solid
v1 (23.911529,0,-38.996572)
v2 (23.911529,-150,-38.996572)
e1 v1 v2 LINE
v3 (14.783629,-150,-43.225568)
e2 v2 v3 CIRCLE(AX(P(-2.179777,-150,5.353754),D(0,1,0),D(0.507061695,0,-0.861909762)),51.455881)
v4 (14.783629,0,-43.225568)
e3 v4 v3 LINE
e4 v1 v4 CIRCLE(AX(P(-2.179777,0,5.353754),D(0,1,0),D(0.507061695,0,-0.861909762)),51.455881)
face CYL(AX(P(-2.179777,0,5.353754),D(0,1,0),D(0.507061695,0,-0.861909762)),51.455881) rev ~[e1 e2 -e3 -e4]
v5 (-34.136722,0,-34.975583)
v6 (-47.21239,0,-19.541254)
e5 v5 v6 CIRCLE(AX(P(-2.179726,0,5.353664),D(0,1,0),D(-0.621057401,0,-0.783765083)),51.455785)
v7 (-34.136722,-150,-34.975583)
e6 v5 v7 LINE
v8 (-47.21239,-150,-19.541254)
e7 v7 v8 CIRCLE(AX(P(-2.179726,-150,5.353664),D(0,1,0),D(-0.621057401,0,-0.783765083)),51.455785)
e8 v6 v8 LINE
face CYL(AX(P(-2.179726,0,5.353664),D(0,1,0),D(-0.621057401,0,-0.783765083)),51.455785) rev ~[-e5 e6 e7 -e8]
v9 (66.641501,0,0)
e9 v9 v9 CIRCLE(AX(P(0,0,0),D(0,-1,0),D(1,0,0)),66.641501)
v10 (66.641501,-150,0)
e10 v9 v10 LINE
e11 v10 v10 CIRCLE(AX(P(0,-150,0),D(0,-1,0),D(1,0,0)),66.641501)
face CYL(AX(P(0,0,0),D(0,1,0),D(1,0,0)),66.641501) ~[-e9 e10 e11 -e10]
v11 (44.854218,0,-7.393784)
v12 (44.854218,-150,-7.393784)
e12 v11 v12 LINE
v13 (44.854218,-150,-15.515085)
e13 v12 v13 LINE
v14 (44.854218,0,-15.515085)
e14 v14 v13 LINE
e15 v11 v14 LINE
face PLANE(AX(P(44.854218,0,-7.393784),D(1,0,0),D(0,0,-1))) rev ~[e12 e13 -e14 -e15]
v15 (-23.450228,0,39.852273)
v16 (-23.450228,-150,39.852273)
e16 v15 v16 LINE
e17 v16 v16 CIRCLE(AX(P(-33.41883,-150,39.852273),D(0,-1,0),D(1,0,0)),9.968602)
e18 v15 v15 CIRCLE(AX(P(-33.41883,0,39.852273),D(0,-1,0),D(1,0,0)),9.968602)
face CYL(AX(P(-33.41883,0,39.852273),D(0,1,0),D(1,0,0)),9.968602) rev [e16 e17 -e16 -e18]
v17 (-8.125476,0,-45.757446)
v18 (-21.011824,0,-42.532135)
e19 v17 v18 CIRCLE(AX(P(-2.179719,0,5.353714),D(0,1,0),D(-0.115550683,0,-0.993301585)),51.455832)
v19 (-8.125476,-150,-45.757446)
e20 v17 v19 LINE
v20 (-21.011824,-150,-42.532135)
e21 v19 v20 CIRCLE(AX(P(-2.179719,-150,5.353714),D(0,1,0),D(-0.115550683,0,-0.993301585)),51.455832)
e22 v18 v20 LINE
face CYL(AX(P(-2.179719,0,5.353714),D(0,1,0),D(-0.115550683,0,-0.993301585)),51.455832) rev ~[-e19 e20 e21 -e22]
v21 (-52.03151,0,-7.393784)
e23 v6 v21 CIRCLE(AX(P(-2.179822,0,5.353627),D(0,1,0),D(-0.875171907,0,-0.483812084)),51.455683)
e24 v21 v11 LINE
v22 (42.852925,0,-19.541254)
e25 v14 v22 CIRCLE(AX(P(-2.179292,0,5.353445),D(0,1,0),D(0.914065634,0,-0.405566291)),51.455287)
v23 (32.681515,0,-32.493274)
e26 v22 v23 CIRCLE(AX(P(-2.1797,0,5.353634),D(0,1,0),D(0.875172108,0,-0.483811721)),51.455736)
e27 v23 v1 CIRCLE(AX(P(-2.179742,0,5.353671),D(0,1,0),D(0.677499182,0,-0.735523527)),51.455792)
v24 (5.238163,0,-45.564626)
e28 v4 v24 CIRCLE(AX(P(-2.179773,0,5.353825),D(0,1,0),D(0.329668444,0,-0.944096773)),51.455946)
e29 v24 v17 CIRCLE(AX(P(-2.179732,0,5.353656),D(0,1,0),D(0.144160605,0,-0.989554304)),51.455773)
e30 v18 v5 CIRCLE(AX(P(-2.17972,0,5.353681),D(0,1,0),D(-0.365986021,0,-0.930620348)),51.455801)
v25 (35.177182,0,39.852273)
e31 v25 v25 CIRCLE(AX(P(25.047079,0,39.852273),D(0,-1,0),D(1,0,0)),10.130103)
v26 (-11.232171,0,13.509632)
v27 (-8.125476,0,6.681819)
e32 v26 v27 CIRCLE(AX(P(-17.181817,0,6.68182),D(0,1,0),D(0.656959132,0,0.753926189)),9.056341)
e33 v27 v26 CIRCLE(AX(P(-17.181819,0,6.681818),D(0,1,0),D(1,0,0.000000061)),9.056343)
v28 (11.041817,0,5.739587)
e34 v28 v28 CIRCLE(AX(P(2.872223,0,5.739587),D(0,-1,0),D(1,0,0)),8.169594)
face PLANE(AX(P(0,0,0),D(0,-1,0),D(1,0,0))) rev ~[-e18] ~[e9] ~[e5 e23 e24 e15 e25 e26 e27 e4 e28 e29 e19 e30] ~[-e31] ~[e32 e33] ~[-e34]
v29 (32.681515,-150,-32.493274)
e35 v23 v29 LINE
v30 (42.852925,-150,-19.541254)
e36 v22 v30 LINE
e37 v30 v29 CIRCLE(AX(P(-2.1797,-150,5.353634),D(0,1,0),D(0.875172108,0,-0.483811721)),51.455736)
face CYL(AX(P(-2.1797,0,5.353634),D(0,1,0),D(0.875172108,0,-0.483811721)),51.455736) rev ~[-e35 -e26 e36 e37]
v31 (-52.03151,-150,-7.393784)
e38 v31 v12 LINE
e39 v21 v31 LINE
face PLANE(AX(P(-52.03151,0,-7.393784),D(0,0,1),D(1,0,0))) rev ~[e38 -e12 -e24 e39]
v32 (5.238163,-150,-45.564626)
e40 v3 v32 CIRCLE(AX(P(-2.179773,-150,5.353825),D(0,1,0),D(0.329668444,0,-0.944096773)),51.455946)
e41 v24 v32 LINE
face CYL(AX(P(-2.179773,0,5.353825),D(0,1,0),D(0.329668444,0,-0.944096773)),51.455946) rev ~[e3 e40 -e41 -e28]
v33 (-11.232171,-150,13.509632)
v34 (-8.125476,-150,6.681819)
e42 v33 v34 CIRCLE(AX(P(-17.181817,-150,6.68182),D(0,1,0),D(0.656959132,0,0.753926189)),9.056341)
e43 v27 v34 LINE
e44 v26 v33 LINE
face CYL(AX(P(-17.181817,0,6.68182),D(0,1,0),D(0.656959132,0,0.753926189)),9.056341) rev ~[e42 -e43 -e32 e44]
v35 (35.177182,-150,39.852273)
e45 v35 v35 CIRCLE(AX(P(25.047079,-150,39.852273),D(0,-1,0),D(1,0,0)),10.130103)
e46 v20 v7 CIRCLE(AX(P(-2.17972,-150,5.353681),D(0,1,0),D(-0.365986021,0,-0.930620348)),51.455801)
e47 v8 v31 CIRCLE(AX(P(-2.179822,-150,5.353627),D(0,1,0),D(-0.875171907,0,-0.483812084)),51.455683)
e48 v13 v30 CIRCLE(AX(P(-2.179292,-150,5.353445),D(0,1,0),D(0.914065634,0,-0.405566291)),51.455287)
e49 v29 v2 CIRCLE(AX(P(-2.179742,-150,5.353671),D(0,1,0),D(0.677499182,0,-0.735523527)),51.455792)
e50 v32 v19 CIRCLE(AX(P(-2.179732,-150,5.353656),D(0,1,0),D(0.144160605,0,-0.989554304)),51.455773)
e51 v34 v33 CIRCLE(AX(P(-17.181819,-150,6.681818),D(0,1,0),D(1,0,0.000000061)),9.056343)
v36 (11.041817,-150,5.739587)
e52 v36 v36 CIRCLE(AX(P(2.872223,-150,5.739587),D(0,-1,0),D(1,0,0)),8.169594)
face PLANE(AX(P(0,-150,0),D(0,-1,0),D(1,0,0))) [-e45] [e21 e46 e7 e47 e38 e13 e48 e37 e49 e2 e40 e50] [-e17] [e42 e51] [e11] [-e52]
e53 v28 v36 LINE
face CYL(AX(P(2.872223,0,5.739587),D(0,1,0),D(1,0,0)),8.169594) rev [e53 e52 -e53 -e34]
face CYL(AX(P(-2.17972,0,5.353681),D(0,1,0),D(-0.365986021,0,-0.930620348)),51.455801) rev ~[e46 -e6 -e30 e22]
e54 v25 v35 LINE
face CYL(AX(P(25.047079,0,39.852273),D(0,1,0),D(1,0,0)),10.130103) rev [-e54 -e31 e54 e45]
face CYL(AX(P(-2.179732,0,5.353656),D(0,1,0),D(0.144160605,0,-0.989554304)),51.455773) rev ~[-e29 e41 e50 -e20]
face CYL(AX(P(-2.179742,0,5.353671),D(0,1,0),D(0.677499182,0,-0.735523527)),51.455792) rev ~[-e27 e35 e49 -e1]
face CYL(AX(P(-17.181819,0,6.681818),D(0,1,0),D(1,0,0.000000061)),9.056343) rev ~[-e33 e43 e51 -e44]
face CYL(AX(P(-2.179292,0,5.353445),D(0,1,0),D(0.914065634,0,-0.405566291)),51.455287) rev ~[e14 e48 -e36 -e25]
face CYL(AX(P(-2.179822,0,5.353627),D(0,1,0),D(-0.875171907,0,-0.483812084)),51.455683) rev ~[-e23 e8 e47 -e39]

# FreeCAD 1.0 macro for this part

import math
import FreeCAD as App
import Part
import Sketcher

V = App.Vector
Q = App.Units.Quantity

doc = App.newDocument("Part")
body = doc.addObject("PartDesign::Body", "Body")

# Sketch on XZ plane
sketch1 = doc.addObject("Sketcher::SketchObject", "Sketch")
body.addObject(sketch1)
sketch1.AttachmentSupport = (doc.XZ_Plane, [""])
sketch1.MapMode = "FlatFace"
sketch1.addGeometry([
    Part.Circle(V(0, 0, 0), V(0, 0, 1), 66.641501),  # 0
    Part.ArcOfCircle(Part.Circle(V(-2.179726, 5.353664, 0), V(0, 0, 1), 51.455785), math.radians(-151.065343), math.radians(-128.393393)),  # 1
    Part.ArcOfCircle(Part.Circle(V(-2.179822, 5.353627, 0), V(0, 0, 1), 51.455683), math.radians(-165.656435), math.radians(-151.065327)),  # 2
    Part.LineSegment(V(-52.03151, -7.393784, 0), V(44.854218, -7.393784, 0)),  # 3
    Part.LineSegment(V(44.854218, -7.393784, 0), V(44.854218, -15.515085, 0)),  # 4
    Part.ArcOfCircle(Part.Circle(V(-2.179292, 5.353445, 0), V(0, 0, 1), 51.455287), math.radians(-28.934684), math.radians(-23.926619)),  # 5
    Part.ArcOfCircle(Part.Circle(V(-2.1797, 5.353634, 0), V(0, 0, 1), 51.455736), math.radians(-47.351478), math.radians(-28.934649)),  # 6
    Part.ArcOfCircle(Part.Circle(V(-2.179742, 5.353671, 0), V(0, 0, 1), 51.455792), math.radians(-59.531679), math.radians(-47.351472)),  # 7
    Part.ArcOfCircle(Part.Circle(V(-2.179777, 5.353754, 0), V(0, 0, 1), 51.455881), math.radians(-70.751317), math.radians(-59.531692)),  # 8
    Part.ArcOfCircle(Part.Circle(V(-2.179773, 5.353825, 0), V(0, 0, 1), 51.455946), math.radians(-81.711308), math.radians(-70.751347)),  # 9
    Part.ArcOfCircle(Part.Circle(V(-2.179732, 5.353656, 0), V(0, 0, 1), 51.455773), math.radians(-96.635382), math.radians(-81.711325)),  # 10
    Part.ArcOfCircle(Part.Circle(V(-2.179719, 5.353714, 0), V(0, 0, 1), 51.455832), math.radians(-111.468264), math.radians(-96.635389)),  # 11
    Part.ArcOfCircle(Part.Circle(V(-2.17972, 5.353681, 0), V(0, 0, 1), 51.455801), math.radians(-128.393387), math.radians(-111.468277)),  # 12
    Part.ArcOfCircle(Part.Circle(V(-17.181819, 6.681818, 0), V(0, 0, 1), 9.056343), math.radians(48.931624), math.radians(360.000003)),  # 13
    Part.ArcOfCircle(Part.Circle(V(-17.181817, 6.68182, 0), V(0, 0, 1), 9.056341), math.radians(-0.000003), math.radians(48.931631)),  # 14
    Part.Circle(V(-33.41883, 39.852273, 0), V(0, 0, 1), 9.968602),  # 15
    Part.Circle(V(2.872223, 5.739587, 0), V(0, 0, 1), 8.169594),  # 16
    Part.Circle(V(25.047079, 39.852273, 0), V(0, 0, 1), 10.130103),  # 17
], False)
sketch1.addConstraint([
    Sketcher.Constraint("Coincident", 1, 1, 2, 2),
    Sketcher.Constraint("Coincident", 2, 1, 3, 1),
    Sketcher.Constraint("Coincident", 3, 2, 4, 1),
    Sketcher.Constraint("Coincident", 4, 2, 5, 2),
    Sketcher.Constraint("Coincident", 5, 1, 6, 2),
    Sketcher.Constraint("Coincident", 6, 1, 7, 2),
    Sketcher.Constraint("Coincident", 7, 1, 8, 2),
    Sketcher.Constraint("Coincident", 8, 1, 9, 2),
    Sketcher.Constraint("Coincident", 9, 1, 10, 2),
    Sketcher.Constraint("Coincident", 10, 1, 11, 2),
    Sketcher.Constraint("Coincident", 11, 1, 12, 2),
    Sketcher.Constraint("Coincident", 12, 1, 1, 2),
    Sketcher.Constraint("Coincident", 13, 1, 14, 2),
    Sketcher.Constraint("Coincident", 14, 1, 13, 2),
    Sketcher.Constraint("Horizontal", 3),
    Sketcher.Constraint("Vertical", 4),
    Sketcher.Constraint("Coincident", 0, 3, -1, 1),
    Sketcher.Constraint("Radius", 12, Q("51.455801 mm")),
    Sketcher.Constraint("Diameter", 16, Q("16.339188 mm")),
    Sketcher.Constraint("Radius", 7, Q("51.455792 mm")),
    Sketcher.Constraint("Radius", 8, Q("51.455881 mm")),
    Sketcher.Constraint("Radius", 14, Q("9.056341 mm")),
    Sketcher.Constraint("Diameter", 0, Q("133.283002 mm")),
    Sketcher.Constraint("Diameter", 15, Q("19.937204 mm")),
    Sketcher.Constraint("Diameter", 17, Q("20.260206 mm")),
    Sketcher.Constraint("DistanceY", 4, 2, 4, 1, Q("8.121301 mm")),
    Sketcher.Constraint("Radius", 1, Q("51.455785 mm")),
    Sketcher.Constraint("Radius", 2, Q("51.455683 mm")),
    Sketcher.Constraint("Radius", 5, Q("51.455287 mm")),
    Sketcher.Constraint("Radius", 6, Q("51.455736 mm")),
    Sketcher.Constraint("Radius", 9, Q("51.455946 mm")),
    Sketcher.Constraint("Radius", 10, Q("51.455773 mm")),
    Sketcher.Constraint("Radius", 11, Q("51.455832 mm")),
    Sketcher.Constraint("Radius", 13, Q("9.056343 mm")),
    Sketcher.Constraint("DistanceX", 3, 1, 3, 2, Q("96.885728 mm")),
    Sketcher.Constraint("DistanceX", 6, 3, -1, 1, Q("2.1797 mm")),
    Sketcher.Constraint("DistanceX", 11, 3, 17, 3, Q("27.226798 mm")),
    Sketcher.Constraint("DistanceY", 5, 1, 5, 3, Q("24.894699 mm")),
    Sketcher.Constraint("DistanceX", 8, 1, 7, 1, Q("9.1279 mm")),
    Sketcher.Constraint("DistanceX", 12, 1, 11, 1, Q("13.124898 mm")),
    Sketcher.Constraint("DistanceY", 12, 1, 2, 1, Q("27.581799 mm")),
    Sketcher.Constraint("DistanceX", 13, 1, 9, 3, Q("9.052398 mm")),
    Sketcher.Constraint("DistanceX", 14, 1, 8, 3, Q("5.945699 mm")),
    Sketcher.Constraint("DistanceX", 2, 3, -1, 1, Q("2.179822 mm")),
    Sketcher.Constraint("DistanceX", 5, 3, -1, 1, Q("2.179292 mm")),
    Sketcher.Constraint("DistanceX", 7, 3, -1, 1, Q("2.179742 mm")),
    Sketcher.Constraint("DistanceY", -1, 1, 7, 3, Q("5.353671 mm")),
    Sketcher.Constraint("DistanceX", 11, 3, -1, 1, Q("2.179719 mm")),
    Sketcher.Constraint("DistanceX", 12, 3, -1, 1, Q("2.17972 mm")),
    Sketcher.Constraint("DistanceY", -1, 1, 12, 3, Q("5.353681 mm")),
    Sketcher.Constraint("DistanceX", 13, 3, -1, 1, Q("17.181819 mm")),
    Sketcher.Constraint("DistanceY", -1, 1, 13, 3, Q("6.681818 mm")),
    Sketcher.Constraint("DistanceX", 15, 3, -1, 1, Q("33.41883 mm")),
    Sketcher.Constraint("DistanceX", 1, 1, -1, 1, Q("47.21239 mm")),
    Sketcher.Constraint("DistanceX", 2, 1, -1, 1, Q("52.03151 mm")),
    Sketcher.Constraint("DistanceX", -1, 1, 7, 1, Q("23.911529 mm")),
    Sketcher.Constraint("DistanceX", 13, 1, -1, 1, Q("11.232171 mm")),
    Sketcher.Constraint("DistanceY", -1, 1, 14, 1, Q("6.681819 mm")),
    Sketcher.Constraint("DistanceY", 9, 3, 15, 3, Q("34.498448 mm")),
    Sketcher.Constraint("DistanceX", 1, 3, 16, 3, Q("5.051949 mm")),
    Sketcher.Constraint("DistanceY", 9, 3, 17, 3, Q("34.498448 mm")),
    Sketcher.Constraint("DistanceY", 3, 2, 16, 3, Q("13.133371 mm")),
    Sketcher.Constraint("DistanceX", 6, 1, 5, 1, Q("10.17141 mm")),
    Sketcher.Constraint("DistanceY", 9, 1, 6, 1, Q("13.071352 mm")),
    Sketcher.Constraint("DistanceX", 10, 1, 9, 1, Q("13.363639 mm")),
])
pad1 = doc.addObject("PartDesign::Pad", "Pad")
body.addObject(pad1)
pad1.Profile = sketch1
pad1.Length = 150

doc.recompute()
